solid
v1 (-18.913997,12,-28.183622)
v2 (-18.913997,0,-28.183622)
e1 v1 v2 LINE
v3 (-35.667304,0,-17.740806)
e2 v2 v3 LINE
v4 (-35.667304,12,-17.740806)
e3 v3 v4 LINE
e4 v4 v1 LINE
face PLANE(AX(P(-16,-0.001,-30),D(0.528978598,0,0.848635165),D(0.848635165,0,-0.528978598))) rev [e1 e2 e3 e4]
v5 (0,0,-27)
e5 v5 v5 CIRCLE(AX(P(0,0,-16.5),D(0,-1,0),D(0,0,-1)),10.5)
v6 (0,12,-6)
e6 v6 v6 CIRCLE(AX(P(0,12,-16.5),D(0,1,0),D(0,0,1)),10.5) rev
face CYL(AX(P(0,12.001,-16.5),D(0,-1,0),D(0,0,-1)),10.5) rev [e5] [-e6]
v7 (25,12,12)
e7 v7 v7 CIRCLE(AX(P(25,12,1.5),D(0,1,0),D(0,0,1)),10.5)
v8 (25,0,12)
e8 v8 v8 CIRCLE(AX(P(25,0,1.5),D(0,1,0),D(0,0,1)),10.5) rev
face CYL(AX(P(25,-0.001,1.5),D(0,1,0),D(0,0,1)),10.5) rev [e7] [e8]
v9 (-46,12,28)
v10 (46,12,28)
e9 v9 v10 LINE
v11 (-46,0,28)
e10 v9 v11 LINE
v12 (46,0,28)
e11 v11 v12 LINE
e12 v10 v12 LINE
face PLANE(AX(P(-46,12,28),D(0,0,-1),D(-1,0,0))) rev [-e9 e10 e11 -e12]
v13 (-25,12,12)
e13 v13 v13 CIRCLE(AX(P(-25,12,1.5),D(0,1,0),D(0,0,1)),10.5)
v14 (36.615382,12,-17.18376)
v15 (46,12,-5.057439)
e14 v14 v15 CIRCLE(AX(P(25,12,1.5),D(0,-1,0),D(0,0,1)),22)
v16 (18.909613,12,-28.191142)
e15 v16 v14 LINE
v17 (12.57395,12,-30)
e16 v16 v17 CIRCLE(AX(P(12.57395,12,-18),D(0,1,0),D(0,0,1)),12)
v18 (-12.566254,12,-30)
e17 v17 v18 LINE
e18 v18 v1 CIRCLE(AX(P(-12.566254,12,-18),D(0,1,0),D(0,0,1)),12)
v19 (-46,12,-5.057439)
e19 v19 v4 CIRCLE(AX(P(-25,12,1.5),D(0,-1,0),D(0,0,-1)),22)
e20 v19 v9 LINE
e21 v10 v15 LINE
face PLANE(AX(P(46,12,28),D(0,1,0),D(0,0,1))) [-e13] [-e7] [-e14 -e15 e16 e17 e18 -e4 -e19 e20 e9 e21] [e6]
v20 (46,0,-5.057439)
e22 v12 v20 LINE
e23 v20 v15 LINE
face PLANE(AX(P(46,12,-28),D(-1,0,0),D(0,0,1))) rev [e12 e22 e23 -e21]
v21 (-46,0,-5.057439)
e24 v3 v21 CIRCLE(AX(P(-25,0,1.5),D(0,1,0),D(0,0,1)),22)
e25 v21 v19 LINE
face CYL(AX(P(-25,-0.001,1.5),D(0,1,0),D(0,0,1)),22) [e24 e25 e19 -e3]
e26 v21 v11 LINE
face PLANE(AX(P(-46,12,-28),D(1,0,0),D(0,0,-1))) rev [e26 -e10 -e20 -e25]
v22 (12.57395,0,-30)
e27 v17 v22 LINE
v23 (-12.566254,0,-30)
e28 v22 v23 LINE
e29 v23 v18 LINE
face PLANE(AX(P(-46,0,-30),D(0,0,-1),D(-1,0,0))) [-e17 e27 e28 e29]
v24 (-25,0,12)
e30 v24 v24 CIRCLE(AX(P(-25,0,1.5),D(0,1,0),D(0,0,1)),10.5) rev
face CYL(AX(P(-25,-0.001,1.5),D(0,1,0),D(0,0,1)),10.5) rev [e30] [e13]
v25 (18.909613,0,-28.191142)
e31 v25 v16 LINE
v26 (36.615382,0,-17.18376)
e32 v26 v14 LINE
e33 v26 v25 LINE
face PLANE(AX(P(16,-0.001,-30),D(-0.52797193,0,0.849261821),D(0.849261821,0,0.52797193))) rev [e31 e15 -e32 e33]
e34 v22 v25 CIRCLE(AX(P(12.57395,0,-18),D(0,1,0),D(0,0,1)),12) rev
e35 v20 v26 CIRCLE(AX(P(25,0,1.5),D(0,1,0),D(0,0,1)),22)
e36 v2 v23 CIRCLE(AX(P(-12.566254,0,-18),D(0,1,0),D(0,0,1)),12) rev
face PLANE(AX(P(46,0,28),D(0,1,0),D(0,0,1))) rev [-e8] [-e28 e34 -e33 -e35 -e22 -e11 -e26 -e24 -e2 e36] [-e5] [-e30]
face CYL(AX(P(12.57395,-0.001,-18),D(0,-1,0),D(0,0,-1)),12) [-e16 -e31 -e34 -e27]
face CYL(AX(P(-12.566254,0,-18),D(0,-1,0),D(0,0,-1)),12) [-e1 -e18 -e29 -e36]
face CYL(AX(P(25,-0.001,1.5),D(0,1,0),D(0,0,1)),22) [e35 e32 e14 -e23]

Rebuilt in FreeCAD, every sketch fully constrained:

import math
import FreeCAD as App
import Part
import Sketcher


def edges_at(feature, points):
    """Names of the edges that pass closest to the given points."""
    edges = feature.Shape.Edges
    near = lambda p: min(range(len(edges)), key=lambda i: edges[i].distToShape(Part.Vertex(*p))[0])
    return sorted({f"Edge{near(p) + 1}" for p in points})

doc = App.newDocument("Part")
body = doc.addObject("PartDesign::Body", "Body")

# Sketch on XZ plane
sketch1 = body.newObject("Sketcher::SketchObject", "Sketch")
sketch1.AttachmentSupport = (doc.getObject("XZ_Plane"), [""])
sketch1.MapMode = "FlatFace"
sketch1.addGeometry(Part.LineSegment(App.Vector(-46, -28, 0), App.Vector(-46, 28, 0)), False)
sketch1.addGeometry(Part.LineSegment(App.Vector(-46, 28, 0), App.Vector(46, 28, 0)), False)
sketch1.addGeometry(Part.LineSegment(App.Vector(46, 28, 0), App.Vector(46, -28, 0)), False)
sketch1.addGeometry(Part.LineSegment(App.Vector(46, -28, 0), App.Vector(-46, -28, 0)), False)
sketch1.addConstraint(Sketcher.Constraint("Coincident", 0, 2, 1, 1))
sketch1.addConstraint(Sketcher.Constraint("Coincident", 1, 2, 2, 1))
sketch1.addConstraint(Sketcher.Constraint("Coincident", 2, 2, 3, 1))
sketch1.addConstraint(Sketcher.Constraint("Coincident", 3, 2, 0, 1))
sketch1.addConstraint(Sketcher.Constraint("Vertical", 0))
sketch1.addConstraint(Sketcher.Constraint("Horizontal", 1))
sketch1.addConstraint(Sketcher.Constraint("Vertical", 2))
sketch1.addConstraint(Sketcher.Constraint("Horizontal", 3))
sketch1.addConstraint(Sketcher.Constraint("Symmetric", 0, 2, 2, 2, -1, 1))
sketch1.addConstraint(Sketcher.Constraint("DistanceX", 1, 1, 1, 2, 92.0))
sketch1.addConstraint(Sketcher.Constraint("DistanceY", 0, 1, 0, 2, 56.0))
pad1 = body.newObject("PartDesign::Pad", "Pad")
pad1.Profile = sketch1
pad1.Length = 12
pad1.Reversed = True

# Sketch on XZ plane
sketch2 = body.newObject("Sketcher::SketchObject", "Sketch001")
sketch2.AttachmentSupport = (doc.getObject("XZ_Plane"), [""])
sketch2.MapMode = "FlatFace"
sketch2.AttachmentOffset = App.Placement(App.Vector(0, 0, -12), App.Rotation())
sketch2.addGeometry(Part.LineSegment(App.Vector(-46, -30, 0), App.Vector(-46, -28, 0)), False)
sketch2.addGeometry(Part.LineSegment(App.Vector(-46, -28, 0), App.Vector(46, -28, 0)), False)
sketch2.addGeometry(Part.LineSegment(App.Vector(46, -28, 0), App.Vector(46, -30, 0)), False)
sketch2.addGeometry(Part.LineSegment(App.Vector(46, -30, 0), App.Vector(-46, -30, 0)), False)
sketch2.addConstraint(Sketcher.Constraint("Coincident", 0, 2, 1, 1))
sketch2.addConstraint(Sketcher.Constraint("Coincident", 1, 2, 2, 1))
sketch2.addConstraint(Sketcher.Constraint("Coincident", 2, 2, 3, 1))
sketch2.addConstraint(Sketcher.Constraint("Coincident", 3, 2, 0, 1))
sketch2.addConstraint(Sketcher.Constraint("Vertical", 0))
sketch2.addConstraint(Sketcher.Constraint("Horizontal", 1))
sketch2.addConstraint(Sketcher.Constraint("Vertical", 2))
sketch2.addConstraint(Sketcher.Constraint("Horizontal", 3))
sketch2.addConstraint(Sketcher.Constraint("DistanceX", 1, 1, 1, 2, 92.0))
sketch2.addConstraint(Sketcher.Constraint("DistanceY", 0, 1, 0, 2, 2.0))
sketch2.addConstraint(Sketcher.Constraint("DistanceX", 0, 2, -1, 1, 46.0))
sketch2.addConstraint(Sketcher.Constraint("DistanceY", 0, 2, -1, 1, 28.0))
pad2 = body.newObject("PartDesign::Pad", "Pad001")
pad2.Profile = sketch2
pad2.Length = 12

# Sketch on XZ plane
sketch3 = body.newObject("Sketcher::SketchObject", "Sketch002")
sketch3.AttachmentSupport = (doc.getObject("XZ_Plane"), [""])
sketch3.MapMode = "FlatFace"
sketch3.AttachmentOffset = App.Placement(App.Vector(0, 0, -12), App.Rotation())
sketch3.addGeometry(Part.Circle(App.Vector(-25, 1.5, 0), App.Vector(0, 0, 1), 10.5), False)
sketch3.addConstraint(Sketcher.Constraint("Diameter", 0, 21.0))
sketch3.addConstraint(Sketcher.Constraint("DistanceX", 0, 3, -1, 1, 25.0))
sketch3.addConstraint(Sketcher.Constraint("DistanceY", -1, 1, 0, 3, 1.5))
pocket1 = body.newObject("PartDesign::Pocket", "Pocket")
pocket1.Profile = sketch3
pocket1.Type = "UpToFirst"
pocket1.Reversed = True

# Sketch on XZ plane
sketch4 = body.newObject("Sketcher::SketchObject", "Sketch003")
sketch4.AttachmentSupport = (doc.getObject("XZ_Plane"), [""])
sketch4.MapMode = "FlatFace"
sketch4.AttachmentOffset = App.Placement(App.Vector(0, 0, -12), App.Rotation())
sketch4.addGeometry(Part.Circle(App.Vector(25, 1.5, 0), App.Vector(0, 0, 1), 10.5), False)
sketch4.addConstraint(Sketcher.Constraint("Diameter", 0, 21.0))
sketch4.addConstraint(Sketcher.Constraint("DistanceX", -1, 1, 0, 3, 25.0))
sketch4.addConstraint(Sketcher.Constraint("DistanceY", -1, 1, 0, 3, 1.5))
pocket2 = body.newObject("PartDesign::Pocket", "Pocket001")
pocket2.Profile = sketch4
pocket2.Type = "UpToFirst"
pocket2.Reversed = True

# Sketch on XZ plane
sketch5 = body.newObject("Sketcher::SketchObject", "Sketch004")
sketch5.AttachmentSupport = (doc.getObject("XZ_Plane"), [""])
sketch5.MapMode = "FlatFace"
sketch5.AttachmentOffset = App.Placement(App.Vector(0, 0, -12), App.Rotation())
sketch5.addGeometry(Part.LineSegment(App.Vector(-46, -30, 0), App.Vector(-46, -5.057439, 0)), False)
sketch5.addGeometry(Part.ArcOfCircle(Part.Circle(App.Vector(-25, 1.5, 0), App.Vector(0, 0, 1), 22), math.radians(-162.658557), math.radians(-119.004444)), False)
sketch5.addGeometry(Part.LineSegment(App.Vector(-35.667304, -17.740806, 0), App.Vector(-16, -30, 0)), False)
sketch5.addGeometry(Part.LineSegment(App.Vector(-16, -30, 0), App.Vector(-46, -30, 0)), False)
sketch5.addConstraint(Sketcher.Constraint("Coincident", 0, 2, 1, 1))
sketch5.addConstraint(Sketcher.Constraint("Coincident", 1, 2, 2, 1))
sketch5.addConstraint(Sketcher.Constraint("Coincident", 2, 2, 3, 1))
sketch5.addConstraint(Sketcher.Constraint("Coincident", 3, 2, 0, 1))
sketch5.addConstraint(Sketcher.Constraint("Vertical", 0))
sketch5.addConstraint(Sketcher.Constraint("Horizontal", 3))
sketch5.addConstraint(Sketcher.Constraint("Radius", 1, 22.0))
sketch5.addConstraint(Sketcher.Constraint("DistanceX", 3, 2, 3, 1, 30.0))
sketch5.addConstraint(Sketcher.Constraint("DistanceX", 1, 3, -1, 1, 25.0))
sketch5.addConstraint(Sketcher.Constraint("DistanceX", 0, 2, -1, 1, 46.0))
sketch5.addConstraint(Sketcher.Constraint("DistanceY", 2, 2, -1, 1, 30.0))
sketch5.addConstraint(Sketcher.Constraint("DistanceY", -1, 1, 1, 3, 1.5))
sketch5.addConstraint(Sketcher.Constraint("Distance", 2, 23.175217))
pocket3 = body.newObject("PartDesign::Pocket", "Pocket002")
pocket3.Profile = sketch5
pocket3.Type = "UpToFirst"
pocket3.Reversed = True

# Sketch on XZ plane
sketch6 = body.newObject("Sketcher::SketchObject", "Sketch005")
sketch6.AttachmentSupport = (doc.getObject("XZ_Plane"), [""])
sketch6.MapMode = "FlatFace"
sketch6.AttachmentOffset = App.Placement(App.Vector(0, 0, -12), App.Rotation())
sketch6.addGeometry(Part.LineSegment(App.Vector(46, -5.057439, 0), App.Vector(46, -30, 0)), False)
sketch6.addGeometry(Part.LineSegment(App.Vector(46, -30, 0), App.Vector(16, -30, 0)), False)
sketch6.addGeometry(Part.LineSegment(App.Vector(16, -30, 0), App.Vector(36.615382, -17.18376, 0)), False)
sketch6.addGeometry(Part.ArcOfCircle(Part.Circle(App.Vector(25, 1.5, 0), App.Vector(0, 0, 1), 22), math.radians(-58.131472), math.radians(-17.341443)), False)
sketch6.addConstraint(Sketcher.Constraint("Coincident", 0, 2, 1, 1))
sketch6.addConstraint(Sketcher.Constraint("Coincident", 1, 2, 2, 1))
sketch6.addConstraint(Sketcher.Constraint("Tangent", 2, 2, 3, 1))
sketch6.addConstraint(Sketcher.Constraint("Coincident", 3, 2, 0, 1))
sketch6.addConstraint(Sketcher.Constraint("Vertical", 0))
sketch6.addConstraint(Sketcher.Constraint("Horizontal", 1))
sketch6.addConstraint(Sketcher.Constraint("Radius", 3, 22.0))
sketch6.addConstraint(Sketcher.Constraint("DistanceX", 1, 2, 1, 1, 30.0))
sketch6.addConstraint(Sketcher.Constraint("DistanceX", -1, 1, 3, 3, 25.0))
sketch6.addConstraint(Sketcher.Constraint("DistanceX", -1, 1, 0, 2, 46.0))
sketch6.addConstraint(Sketcher.Constraint("DistanceY", 0, 2, -1, 1, 30.0))
sketch6.addConstraint(Sketcher.Constraint("DistanceY", -1, 1, 3, 3, 1.5))
pocket4 = body.newObject("PartDesign::Pocket", "Pocket003")
pocket4.Profile = sketch6
pocket4.Type = "UpToFirst"
pocket4.Reversed = True
doc.recompute()

fillet = body.newObject("PartDesign::Fillet", "Fillet")
fillet.Base = (pocket4, edges_at(pocket4, [(-16, 6, -30), (16, 6, -30)]))
fillet.Radius = 12

# Sketch on XZ plane
sketch7 = body.newObject("Sketcher::SketchObject", "Sketch006")
sketch7.AttachmentSupport = (doc.getObject("XZ_Plane"), [""])
sketch7.MapMode = "FlatFace"
sketch7.addGeometry(Part.Circle(App.Vector(0, -16.5, 0), App.Vector(0, 0, 1), 10.5), False)
sketch7.addConstraint(Sketcher.Constraint("PointOnObject", 0, 3, -2))
sketch7.addConstraint(Sketcher.Constraint("Diameter", 0, 21.0))
sketch7.addConstraint(Sketcher.Constraint("DistanceY", 0, 3, -1, 1, 16.5))
pocket5 = body.newObject("PartDesign::Pocket", "Pocket004")
pocket5.Profile = sketch7
pocket5.Type = "UpToFirst"

doc.recompute()
